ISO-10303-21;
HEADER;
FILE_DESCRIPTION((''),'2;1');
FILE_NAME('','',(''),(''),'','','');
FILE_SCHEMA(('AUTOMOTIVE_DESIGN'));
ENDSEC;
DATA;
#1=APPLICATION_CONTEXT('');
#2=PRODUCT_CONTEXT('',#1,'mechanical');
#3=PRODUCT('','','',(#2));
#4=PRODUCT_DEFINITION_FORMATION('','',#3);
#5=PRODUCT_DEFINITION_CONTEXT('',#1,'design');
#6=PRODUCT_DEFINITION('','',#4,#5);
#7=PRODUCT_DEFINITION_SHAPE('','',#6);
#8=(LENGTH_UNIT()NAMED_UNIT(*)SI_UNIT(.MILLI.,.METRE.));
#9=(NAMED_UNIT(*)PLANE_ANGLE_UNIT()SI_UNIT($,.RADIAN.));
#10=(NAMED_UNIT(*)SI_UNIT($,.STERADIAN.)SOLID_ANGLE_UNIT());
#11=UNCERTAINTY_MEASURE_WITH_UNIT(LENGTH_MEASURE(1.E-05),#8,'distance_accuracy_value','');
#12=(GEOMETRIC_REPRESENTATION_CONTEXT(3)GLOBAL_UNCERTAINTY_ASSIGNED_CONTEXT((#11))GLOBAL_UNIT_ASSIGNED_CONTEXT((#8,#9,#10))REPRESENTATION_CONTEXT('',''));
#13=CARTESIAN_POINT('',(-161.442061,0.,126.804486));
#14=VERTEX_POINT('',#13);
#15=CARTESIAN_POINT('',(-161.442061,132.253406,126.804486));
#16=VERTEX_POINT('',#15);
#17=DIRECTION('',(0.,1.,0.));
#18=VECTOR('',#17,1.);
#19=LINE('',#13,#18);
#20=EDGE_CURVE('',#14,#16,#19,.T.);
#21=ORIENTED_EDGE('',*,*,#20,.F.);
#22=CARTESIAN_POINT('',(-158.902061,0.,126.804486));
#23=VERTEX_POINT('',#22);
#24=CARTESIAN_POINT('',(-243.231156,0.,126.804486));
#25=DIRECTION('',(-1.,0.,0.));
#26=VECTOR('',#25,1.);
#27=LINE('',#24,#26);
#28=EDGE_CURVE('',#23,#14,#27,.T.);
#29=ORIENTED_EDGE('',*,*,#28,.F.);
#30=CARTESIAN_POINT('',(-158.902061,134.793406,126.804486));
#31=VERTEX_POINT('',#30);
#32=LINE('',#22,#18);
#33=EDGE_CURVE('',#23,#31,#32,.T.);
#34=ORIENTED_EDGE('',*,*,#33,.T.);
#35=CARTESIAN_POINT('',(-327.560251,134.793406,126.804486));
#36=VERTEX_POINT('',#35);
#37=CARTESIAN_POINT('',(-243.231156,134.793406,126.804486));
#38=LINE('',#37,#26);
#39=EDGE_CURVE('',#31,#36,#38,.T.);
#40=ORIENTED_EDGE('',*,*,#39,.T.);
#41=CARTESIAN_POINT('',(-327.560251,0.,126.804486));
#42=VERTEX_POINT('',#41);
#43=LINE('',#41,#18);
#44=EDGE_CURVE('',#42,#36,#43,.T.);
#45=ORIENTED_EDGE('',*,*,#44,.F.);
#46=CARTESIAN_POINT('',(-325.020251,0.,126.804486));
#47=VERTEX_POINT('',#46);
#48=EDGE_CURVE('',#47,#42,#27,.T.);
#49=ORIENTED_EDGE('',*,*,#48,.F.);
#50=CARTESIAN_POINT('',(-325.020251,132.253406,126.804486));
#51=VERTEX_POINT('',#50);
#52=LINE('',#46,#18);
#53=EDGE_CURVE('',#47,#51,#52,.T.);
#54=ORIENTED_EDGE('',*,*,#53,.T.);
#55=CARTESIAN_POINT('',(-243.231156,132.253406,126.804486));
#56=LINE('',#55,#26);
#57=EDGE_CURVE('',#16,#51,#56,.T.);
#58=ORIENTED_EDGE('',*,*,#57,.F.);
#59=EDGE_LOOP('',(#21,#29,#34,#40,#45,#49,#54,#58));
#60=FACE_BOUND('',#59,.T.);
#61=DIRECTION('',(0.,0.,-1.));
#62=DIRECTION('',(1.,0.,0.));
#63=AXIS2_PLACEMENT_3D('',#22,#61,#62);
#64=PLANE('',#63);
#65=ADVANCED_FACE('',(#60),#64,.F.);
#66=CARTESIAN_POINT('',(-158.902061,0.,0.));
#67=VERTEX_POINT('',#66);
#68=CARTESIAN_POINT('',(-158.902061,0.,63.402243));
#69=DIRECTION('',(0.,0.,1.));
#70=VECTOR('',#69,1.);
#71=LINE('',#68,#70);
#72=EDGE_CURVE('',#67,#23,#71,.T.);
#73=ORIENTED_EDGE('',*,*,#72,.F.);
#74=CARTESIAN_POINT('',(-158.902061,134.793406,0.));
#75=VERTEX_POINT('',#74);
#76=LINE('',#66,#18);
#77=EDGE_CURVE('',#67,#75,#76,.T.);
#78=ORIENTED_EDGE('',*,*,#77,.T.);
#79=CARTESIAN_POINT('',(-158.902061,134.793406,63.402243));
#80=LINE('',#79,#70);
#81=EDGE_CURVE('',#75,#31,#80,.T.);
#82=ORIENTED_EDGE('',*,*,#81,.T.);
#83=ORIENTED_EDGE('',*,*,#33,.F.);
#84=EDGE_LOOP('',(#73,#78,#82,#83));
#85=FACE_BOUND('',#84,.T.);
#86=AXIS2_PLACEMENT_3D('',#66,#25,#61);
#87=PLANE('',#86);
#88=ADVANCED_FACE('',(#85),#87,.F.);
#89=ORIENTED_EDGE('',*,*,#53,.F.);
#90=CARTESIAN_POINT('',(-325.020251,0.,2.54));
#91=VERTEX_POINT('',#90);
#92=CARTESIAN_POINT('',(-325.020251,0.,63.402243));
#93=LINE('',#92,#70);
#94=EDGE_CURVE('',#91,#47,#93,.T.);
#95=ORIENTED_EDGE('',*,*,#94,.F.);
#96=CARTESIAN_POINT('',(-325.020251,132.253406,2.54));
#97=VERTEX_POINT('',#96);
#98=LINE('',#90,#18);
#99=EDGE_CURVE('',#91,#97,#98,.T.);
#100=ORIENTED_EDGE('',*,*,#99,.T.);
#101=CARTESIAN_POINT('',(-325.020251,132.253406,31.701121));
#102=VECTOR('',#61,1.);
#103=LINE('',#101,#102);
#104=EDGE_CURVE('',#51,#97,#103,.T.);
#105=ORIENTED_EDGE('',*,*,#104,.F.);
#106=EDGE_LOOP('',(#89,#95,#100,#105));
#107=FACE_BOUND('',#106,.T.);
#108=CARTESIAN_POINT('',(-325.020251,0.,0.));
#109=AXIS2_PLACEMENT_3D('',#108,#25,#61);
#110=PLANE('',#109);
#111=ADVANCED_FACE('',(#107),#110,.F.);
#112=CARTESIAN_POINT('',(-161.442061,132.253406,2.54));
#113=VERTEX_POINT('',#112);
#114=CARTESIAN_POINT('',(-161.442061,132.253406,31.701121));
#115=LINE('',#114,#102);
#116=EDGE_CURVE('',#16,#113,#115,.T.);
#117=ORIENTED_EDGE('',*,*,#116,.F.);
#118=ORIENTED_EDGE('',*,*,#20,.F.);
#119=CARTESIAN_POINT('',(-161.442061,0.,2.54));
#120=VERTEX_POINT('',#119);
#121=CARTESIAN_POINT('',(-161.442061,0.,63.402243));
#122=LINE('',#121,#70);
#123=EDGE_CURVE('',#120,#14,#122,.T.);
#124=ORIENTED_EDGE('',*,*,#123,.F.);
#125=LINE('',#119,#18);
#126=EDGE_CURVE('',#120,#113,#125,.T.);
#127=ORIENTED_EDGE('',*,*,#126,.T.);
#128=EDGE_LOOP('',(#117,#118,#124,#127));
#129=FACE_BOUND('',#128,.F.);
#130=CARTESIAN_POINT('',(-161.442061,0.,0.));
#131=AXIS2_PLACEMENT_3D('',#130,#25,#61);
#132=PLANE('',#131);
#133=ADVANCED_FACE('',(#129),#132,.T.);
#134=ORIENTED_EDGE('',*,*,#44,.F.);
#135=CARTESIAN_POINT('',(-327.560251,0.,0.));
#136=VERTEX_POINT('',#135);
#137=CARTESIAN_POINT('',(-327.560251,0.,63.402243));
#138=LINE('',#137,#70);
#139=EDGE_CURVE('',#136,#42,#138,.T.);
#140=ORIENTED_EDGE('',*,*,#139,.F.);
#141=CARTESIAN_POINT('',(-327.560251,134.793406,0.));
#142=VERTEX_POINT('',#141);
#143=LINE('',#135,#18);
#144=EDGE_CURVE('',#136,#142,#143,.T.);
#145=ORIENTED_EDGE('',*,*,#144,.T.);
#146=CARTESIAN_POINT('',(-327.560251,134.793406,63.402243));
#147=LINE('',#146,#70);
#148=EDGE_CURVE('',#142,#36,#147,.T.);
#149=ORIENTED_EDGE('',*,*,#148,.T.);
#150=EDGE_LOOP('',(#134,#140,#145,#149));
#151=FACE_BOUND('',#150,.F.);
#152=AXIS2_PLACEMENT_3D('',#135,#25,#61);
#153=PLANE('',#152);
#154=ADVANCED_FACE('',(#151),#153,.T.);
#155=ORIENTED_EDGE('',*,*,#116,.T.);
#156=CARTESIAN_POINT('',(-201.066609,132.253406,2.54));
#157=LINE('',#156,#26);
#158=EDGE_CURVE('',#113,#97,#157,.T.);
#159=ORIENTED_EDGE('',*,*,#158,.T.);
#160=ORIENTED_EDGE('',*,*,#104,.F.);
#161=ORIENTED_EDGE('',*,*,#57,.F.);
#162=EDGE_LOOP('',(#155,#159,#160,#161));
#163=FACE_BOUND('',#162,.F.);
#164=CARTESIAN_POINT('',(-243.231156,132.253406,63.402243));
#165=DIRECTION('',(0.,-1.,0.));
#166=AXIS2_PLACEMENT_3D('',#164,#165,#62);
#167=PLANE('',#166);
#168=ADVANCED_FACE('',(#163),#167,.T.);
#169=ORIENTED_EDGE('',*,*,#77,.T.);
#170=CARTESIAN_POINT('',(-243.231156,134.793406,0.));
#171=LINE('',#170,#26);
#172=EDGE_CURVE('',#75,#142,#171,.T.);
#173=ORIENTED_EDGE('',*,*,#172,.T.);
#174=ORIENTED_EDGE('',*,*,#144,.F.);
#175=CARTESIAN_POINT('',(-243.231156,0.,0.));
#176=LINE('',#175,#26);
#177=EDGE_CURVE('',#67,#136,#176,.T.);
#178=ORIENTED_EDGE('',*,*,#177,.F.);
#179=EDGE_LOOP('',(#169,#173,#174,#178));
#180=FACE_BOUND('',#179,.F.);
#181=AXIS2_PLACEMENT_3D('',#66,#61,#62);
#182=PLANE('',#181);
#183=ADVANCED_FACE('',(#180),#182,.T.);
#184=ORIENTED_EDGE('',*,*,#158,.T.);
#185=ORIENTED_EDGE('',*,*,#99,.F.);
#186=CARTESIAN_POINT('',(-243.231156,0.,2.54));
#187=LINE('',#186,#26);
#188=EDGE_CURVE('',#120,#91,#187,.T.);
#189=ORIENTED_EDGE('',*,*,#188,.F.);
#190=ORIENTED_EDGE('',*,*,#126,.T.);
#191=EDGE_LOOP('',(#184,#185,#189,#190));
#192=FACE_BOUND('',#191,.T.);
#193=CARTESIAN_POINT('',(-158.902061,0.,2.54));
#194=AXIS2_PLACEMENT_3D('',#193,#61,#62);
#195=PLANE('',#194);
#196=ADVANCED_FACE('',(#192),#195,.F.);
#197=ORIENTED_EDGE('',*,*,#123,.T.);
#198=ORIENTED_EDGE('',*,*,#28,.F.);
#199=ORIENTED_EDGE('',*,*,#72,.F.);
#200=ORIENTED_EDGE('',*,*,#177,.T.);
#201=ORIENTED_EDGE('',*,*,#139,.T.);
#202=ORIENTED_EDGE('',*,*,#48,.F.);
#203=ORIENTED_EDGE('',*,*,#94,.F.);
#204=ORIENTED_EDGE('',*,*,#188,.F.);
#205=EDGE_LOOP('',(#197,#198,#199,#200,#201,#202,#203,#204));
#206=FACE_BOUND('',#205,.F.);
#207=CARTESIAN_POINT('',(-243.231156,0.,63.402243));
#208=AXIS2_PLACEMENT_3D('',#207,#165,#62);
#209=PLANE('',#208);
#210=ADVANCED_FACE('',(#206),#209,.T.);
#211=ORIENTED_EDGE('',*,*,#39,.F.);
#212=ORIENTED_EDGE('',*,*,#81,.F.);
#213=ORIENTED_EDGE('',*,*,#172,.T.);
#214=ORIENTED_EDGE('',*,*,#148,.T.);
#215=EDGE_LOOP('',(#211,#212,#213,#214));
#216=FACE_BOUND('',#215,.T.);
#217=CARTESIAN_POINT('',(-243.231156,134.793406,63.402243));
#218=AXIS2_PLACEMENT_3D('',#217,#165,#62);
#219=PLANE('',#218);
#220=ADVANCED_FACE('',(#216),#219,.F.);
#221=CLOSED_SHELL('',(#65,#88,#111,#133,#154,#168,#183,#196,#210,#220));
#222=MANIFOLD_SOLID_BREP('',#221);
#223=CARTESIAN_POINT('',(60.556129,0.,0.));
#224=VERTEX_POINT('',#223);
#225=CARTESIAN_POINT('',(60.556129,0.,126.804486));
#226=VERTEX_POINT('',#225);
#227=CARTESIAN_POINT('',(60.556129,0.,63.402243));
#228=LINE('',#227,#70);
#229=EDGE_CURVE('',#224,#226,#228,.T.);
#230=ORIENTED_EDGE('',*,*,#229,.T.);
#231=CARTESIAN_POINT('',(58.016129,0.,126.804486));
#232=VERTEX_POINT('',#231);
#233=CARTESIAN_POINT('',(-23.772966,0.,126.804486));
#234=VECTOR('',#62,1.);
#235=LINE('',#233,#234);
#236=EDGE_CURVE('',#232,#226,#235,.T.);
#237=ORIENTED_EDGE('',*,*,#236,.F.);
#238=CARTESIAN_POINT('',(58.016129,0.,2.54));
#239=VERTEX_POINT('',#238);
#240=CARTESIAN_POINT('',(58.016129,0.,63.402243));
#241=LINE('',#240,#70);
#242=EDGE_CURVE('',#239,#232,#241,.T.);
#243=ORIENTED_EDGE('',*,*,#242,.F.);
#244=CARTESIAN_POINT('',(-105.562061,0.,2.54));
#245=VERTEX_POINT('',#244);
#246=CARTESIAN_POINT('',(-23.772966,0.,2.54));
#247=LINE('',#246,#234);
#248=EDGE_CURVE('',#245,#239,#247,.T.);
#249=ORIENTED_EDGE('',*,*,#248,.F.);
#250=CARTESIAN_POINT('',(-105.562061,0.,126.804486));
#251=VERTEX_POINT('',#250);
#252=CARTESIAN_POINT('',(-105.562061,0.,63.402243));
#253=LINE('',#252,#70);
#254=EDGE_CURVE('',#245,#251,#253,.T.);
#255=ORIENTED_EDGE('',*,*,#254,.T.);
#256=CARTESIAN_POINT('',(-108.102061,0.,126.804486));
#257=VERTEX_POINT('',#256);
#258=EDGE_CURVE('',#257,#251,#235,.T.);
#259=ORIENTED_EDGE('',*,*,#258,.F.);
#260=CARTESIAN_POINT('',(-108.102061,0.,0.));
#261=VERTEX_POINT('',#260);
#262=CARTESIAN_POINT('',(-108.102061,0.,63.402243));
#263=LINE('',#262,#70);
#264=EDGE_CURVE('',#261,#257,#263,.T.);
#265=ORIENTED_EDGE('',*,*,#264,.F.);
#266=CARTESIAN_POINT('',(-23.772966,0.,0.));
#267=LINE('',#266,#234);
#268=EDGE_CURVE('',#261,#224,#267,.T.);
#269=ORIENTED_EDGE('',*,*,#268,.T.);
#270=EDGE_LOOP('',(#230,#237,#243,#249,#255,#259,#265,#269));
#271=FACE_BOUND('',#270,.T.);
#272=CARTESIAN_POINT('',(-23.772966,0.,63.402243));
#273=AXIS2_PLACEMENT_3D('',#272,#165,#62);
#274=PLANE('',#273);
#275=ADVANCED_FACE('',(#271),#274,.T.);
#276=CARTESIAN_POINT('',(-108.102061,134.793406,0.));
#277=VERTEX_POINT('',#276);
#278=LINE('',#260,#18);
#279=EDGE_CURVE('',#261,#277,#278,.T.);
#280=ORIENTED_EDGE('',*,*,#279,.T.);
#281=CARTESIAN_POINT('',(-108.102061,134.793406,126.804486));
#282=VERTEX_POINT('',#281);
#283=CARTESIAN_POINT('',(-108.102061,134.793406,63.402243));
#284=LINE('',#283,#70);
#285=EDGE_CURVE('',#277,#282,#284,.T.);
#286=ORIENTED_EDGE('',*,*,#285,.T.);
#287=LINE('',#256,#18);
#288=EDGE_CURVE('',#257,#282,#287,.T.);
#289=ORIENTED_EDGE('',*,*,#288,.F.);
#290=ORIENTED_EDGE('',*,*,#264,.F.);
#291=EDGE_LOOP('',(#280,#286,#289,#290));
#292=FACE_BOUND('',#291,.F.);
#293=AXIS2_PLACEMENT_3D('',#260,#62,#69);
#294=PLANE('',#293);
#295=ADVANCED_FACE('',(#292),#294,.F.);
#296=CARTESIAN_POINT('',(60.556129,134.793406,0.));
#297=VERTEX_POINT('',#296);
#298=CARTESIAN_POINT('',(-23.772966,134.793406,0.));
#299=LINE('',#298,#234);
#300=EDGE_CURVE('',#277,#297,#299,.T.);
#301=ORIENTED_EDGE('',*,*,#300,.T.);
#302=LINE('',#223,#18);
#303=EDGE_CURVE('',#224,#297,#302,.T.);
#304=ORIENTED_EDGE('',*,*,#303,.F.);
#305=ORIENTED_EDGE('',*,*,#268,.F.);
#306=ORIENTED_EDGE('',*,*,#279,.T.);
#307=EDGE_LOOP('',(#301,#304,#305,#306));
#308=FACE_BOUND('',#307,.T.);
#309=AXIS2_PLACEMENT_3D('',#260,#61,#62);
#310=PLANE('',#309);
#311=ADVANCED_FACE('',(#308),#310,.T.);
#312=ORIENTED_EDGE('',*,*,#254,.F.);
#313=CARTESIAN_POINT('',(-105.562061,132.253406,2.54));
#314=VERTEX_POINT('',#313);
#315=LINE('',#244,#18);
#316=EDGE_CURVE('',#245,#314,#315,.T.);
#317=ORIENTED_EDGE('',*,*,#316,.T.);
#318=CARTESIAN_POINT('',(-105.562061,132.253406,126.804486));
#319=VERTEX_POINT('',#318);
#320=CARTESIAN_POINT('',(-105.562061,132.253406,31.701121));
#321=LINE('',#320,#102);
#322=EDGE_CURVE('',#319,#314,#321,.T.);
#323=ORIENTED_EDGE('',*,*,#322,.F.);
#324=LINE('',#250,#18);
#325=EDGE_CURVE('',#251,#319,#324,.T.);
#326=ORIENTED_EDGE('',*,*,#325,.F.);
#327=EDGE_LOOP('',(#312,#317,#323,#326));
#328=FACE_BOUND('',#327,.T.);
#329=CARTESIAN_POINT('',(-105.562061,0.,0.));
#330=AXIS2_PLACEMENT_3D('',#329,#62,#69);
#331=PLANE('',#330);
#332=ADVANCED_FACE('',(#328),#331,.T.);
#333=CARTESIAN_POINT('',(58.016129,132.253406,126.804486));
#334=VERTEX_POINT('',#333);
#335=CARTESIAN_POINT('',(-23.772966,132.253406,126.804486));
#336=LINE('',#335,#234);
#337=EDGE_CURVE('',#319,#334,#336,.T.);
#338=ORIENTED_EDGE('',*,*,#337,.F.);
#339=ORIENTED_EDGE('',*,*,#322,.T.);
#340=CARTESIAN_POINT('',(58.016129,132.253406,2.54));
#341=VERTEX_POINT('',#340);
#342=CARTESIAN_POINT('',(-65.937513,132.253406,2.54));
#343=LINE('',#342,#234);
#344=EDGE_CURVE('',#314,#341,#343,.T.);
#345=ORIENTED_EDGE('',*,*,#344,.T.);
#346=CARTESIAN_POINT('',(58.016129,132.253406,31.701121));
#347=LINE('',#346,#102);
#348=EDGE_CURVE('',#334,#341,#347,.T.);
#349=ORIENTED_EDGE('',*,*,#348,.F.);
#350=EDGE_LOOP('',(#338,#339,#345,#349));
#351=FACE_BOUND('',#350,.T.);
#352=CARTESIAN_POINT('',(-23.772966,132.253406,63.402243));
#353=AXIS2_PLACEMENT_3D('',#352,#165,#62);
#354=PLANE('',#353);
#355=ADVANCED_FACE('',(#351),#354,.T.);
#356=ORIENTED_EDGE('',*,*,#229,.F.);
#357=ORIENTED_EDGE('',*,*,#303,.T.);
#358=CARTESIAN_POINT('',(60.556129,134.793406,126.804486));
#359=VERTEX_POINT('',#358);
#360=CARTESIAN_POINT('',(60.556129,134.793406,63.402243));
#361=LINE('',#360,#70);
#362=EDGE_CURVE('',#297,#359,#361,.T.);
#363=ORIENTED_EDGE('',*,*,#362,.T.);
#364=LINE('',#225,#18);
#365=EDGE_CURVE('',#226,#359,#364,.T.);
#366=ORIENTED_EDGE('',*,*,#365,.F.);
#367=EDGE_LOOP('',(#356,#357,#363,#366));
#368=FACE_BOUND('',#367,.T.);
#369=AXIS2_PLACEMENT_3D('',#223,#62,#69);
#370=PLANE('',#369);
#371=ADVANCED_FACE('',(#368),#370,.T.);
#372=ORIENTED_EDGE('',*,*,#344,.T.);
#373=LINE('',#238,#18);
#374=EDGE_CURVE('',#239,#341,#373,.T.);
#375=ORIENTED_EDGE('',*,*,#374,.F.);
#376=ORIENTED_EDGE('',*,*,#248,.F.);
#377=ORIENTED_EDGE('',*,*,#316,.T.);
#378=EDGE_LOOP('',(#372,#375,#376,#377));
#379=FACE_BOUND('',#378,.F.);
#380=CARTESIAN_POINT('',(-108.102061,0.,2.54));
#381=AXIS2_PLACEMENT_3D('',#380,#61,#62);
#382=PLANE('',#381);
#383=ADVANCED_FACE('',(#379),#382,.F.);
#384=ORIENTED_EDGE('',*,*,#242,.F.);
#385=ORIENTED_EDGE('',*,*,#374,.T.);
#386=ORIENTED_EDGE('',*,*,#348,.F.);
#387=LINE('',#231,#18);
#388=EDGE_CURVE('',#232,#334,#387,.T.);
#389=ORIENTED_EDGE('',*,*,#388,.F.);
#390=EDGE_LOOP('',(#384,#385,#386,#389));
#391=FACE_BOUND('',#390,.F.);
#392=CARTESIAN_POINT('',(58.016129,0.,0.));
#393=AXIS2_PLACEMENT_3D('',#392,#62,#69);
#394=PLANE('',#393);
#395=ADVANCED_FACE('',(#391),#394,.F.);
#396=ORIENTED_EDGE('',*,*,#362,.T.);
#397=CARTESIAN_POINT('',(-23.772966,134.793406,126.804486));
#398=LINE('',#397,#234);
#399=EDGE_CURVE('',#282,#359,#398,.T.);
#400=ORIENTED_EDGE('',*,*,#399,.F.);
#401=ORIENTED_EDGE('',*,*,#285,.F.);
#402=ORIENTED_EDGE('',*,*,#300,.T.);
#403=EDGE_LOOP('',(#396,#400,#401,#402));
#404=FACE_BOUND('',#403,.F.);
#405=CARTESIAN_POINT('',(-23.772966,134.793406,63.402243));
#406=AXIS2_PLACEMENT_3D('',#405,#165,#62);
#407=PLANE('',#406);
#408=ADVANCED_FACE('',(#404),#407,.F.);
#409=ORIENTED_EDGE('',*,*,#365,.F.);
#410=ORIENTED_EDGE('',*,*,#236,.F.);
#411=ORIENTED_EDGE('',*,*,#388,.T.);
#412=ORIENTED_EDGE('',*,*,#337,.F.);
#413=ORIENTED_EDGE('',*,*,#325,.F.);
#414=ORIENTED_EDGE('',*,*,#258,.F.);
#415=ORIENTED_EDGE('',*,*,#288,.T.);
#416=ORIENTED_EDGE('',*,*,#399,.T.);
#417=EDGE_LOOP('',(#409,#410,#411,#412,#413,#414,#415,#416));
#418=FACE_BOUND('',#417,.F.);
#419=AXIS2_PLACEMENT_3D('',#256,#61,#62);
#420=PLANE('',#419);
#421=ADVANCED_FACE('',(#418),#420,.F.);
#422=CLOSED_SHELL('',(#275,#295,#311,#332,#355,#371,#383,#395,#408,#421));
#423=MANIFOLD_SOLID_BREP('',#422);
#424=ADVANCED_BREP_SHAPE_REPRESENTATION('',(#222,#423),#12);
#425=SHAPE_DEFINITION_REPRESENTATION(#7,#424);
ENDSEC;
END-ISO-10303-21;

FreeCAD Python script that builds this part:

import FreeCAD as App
import Part
import Sketcher
from FreeCAD import Vector
Q = App.Units.Quantity


def faces_at(feature, points):
    """Names of the faces that lie closest to the given points."""
    faces = feature.Shape.Faces
    near = lambda p: min(range(len(faces)), key=lambda i: faces[i].distToShape(Part.Vertex(*p))[0])
    return sorted({f"Face{near(p) + 1}" for p in points})

doc = App.newDocument("Part")
body = doc.addObject("PartDesign::Body", "Body")

sketch1 = body.newObject("Sketcher::SketchObject", "Sketch")
sketch1.AttachmentSupport = (doc.getObject("XZ_Plane"), [""])
sketch1.MapMode = "FlatFace"
sketch1.addGeometry([
    Part.LineSegment(Vector(-108, 127, 0), Vector(-108, 0, 0)),
    Part.LineSegment(Vector(-108, 0, 0), Vector(61, 0, 0)),
    Part.LineSegment(Vector(61, 0, 0), Vector(61, 127, 0)),
    Part.LineSegment(Vector(61, 127, 0), Vector(-108, 127, 0)),
], False)
sketch1.addConstraint([
    Sketcher.Constraint("Coincident", 0, 2, 1, 1),
    Sketcher.Constraint("Coincident", 1, 2, 2, 1),
    Sketcher.Constraint("Coincident", 2, 2, 3, 1),
    Sketcher.Constraint("Coincident", 3, 2, 0, 1),
    Sketcher.Constraint("Vertical", 0),
    Sketcher.Constraint("Horizontal", 1),
    Sketcher.Constraint("Vertical", 2),
    Sketcher.Constraint("Horizontal", 3),
    Sketcher.Constraint("PointOnObject", 0, 2, -1),
    Sketcher.Constraint("DistanceX", 1, 1, 1, 2, 168.65819),
    Sketcher.Constraint("DistanceY", 0, 2, 0, 1, 126.804486),
    Sketcher.Constraint("DistanceX", 0, 2, -1, 1, 108.102061),
])
pad1 = body.newObject("PartDesign::Pad", "Pad")
pad1.Profile = sketch1
pad1.Length = 134.793406
pad1.Reversed = True
doc.recompute()

thickness = body.newObject("PartDesign::Thickness", "Thickness")
thickness.Base = (pad1, faces_at(pad1, [(-23.773, 0, 63.402), (-23.773, 67.397, 126.804)]))
thickness.Value = Q("0.1 in")
thickness.Reversed = True
thickness.Join = "Arc"
body2 = doc.addObject("PartDesign::Body", "Body001")
doc.recompute()

mirroring = doc.addObject("Part::Mirroring", "Mirroring")
mirroring.Source = body
mirroring.Base = Vector(-133.502061, 67.396703, 63.402243)
mirroring.Normal = Vector(-1, 0, 0)
body2.BaseFeature = mirroring
doc.recompute()
mirroring.Visibility = False

doc.recompute()
